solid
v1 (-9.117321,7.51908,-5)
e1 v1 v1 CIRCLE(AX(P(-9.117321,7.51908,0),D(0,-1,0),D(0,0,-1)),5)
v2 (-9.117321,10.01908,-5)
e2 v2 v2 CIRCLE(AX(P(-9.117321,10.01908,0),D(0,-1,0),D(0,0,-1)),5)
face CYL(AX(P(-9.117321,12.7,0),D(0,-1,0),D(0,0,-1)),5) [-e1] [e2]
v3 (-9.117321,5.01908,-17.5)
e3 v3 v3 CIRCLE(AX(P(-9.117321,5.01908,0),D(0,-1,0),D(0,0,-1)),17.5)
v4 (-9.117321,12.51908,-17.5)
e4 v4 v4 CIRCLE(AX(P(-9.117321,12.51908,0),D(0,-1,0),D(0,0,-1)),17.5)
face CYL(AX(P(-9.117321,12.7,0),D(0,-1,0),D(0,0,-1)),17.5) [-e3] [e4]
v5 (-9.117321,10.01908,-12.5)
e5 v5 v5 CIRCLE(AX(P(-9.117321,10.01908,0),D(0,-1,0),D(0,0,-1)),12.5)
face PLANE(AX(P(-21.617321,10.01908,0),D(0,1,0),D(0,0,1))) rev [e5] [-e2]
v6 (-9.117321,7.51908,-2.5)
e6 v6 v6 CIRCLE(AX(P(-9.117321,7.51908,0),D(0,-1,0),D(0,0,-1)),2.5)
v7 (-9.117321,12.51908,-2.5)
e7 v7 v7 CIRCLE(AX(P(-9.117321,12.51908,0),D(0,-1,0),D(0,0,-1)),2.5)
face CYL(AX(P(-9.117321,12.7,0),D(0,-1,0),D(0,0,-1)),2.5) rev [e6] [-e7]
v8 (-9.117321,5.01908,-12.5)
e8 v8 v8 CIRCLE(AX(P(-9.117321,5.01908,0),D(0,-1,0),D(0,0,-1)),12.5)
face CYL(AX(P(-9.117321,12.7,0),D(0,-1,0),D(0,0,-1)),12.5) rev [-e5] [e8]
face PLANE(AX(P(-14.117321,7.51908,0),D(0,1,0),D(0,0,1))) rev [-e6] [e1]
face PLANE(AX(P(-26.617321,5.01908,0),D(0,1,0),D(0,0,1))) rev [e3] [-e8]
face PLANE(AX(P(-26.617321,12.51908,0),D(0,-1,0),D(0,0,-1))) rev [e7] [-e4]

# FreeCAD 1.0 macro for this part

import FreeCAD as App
import Part
import Sketcher
from FreeCAD import Vector
Q = App.Units.Quantity

doc = App.newDocument("Part")
body = doc.addObject("PartDesign::Body", "Body")

# Sketch on XY plane
sketch1 = body.newObject("Sketcher::SketchObject", "Sketch")
sketch1.AttachmentSupport = (doc.getObject("XY_Plane"), [""])
sketch1.MapMode = "FlatFace"
sketch1.addGeometry([
    Part.LineSegment(Vector(-14.1, 7.5, 0), Vector(-11.6, 7.5, 0)),  # 0
    Part.LineSegment(Vector(-11.6, 7.5, 0), Vector(-11.6, 12.5, 0)),  # 1
    Part.LineSegment(Vector(-11.6, 12.5, 0), Vector(-26.6, 12.5, 0)),  # 2
    Part.LineSegment(Vector(-26.6, 12.5, 0), Vector(-26.6, 5, 0)),  # 3
    Part.LineSegment(Vector(-26.6, 5, 0), Vector(-21.6, 5, 0)),  # 4
    Part.LineSegment(Vector(-21.6, 5, 0), Vector(-21.6, 10, 0)),  # 5
    Part.LineSegment(Vector(-21.6, 10, 0), Vector(-14.1, 10, 0)),  # 6
    Part.LineSegment(Vector(-14.1, 10, 0), Vector(-14.1, 7.5, 0)),  # 7
], False)
sketch1.addGeometry(Part.LineSegment(Vector(-9.1, 5, 0), Vector(-9.1, 12.5, 0)), True)  # axis
sketch1.addConstraint([
    Sketcher.Constraint("Coincident", 0, 2, 1, 1),
    Sketcher.Constraint("Coincident", 1, 2, 2, 1),
    Sketcher.Constraint("Coincident", 2, 2, 3, 1),
    Sketcher.Constraint("Coincident", 3, 2, 4, 1),
    Sketcher.Constraint("Coincident", 4, 2, 5, 1),
    Sketcher.Constraint("Coincident", 5, 2, 6, 1),
    Sketcher.Constraint("Coincident", 6, 2, 7, 1),
    Sketcher.Constraint("Coincident", 7, 2, 0, 1),
    Sketcher.Constraint("Horizontal", 0),
    Sketcher.Constraint("Vertical", 1),
    Sketcher.Constraint("Horizontal", 2),
    Sketcher.Constraint("Vertical", 3),
    Sketcher.Constraint("Horizontal", 4),
    Sketcher.Constraint("Vertical", 5),
    Sketcher.Constraint("Horizontal", 6),
    Sketcher.Constraint("Vertical", 7),
    Sketcher.Constraint("Vertical", 8),
    Sketcher.Constraint("Horizontal", 4, 2, 8, 1),
    Sketcher.Constraint("Horizontal", 2, 2, 8, 2),
    Sketcher.Constraint("Equal", 4, 1),
    Sketcher.Constraint("Equal", 6, 3),
    Sketcher.Constraint("Equal", 1, 5),
    Sketcher.Constraint("Equal", 0, 7),
    Sketcher.Constraint("DistanceX", 2, 2, 2, 1, Q("15 mm")),
    Sketcher.Constraint("DistanceX", 0, 1, 0, 2, Q("2.5 mm")),
    Sketcher.Constraint("DistanceX", 7, 2, 8, 1, Q("5 mm")),
    Sketcher.Constraint("DistanceX", 0, 2, -1, 1, Q("11.617321 mm")),
    Sketcher.Constraint("DistanceY", -1, 1, 0, 2, Q("7.51908 mm")),
])
revolution = body.newObject("PartDesign::Revolution", "Revolution")
revolution.Profile = sketch1
revolution.ReferenceAxis = (sketch1, ["Axis0"])
revolution.Angle = 360

doc.recompute()
